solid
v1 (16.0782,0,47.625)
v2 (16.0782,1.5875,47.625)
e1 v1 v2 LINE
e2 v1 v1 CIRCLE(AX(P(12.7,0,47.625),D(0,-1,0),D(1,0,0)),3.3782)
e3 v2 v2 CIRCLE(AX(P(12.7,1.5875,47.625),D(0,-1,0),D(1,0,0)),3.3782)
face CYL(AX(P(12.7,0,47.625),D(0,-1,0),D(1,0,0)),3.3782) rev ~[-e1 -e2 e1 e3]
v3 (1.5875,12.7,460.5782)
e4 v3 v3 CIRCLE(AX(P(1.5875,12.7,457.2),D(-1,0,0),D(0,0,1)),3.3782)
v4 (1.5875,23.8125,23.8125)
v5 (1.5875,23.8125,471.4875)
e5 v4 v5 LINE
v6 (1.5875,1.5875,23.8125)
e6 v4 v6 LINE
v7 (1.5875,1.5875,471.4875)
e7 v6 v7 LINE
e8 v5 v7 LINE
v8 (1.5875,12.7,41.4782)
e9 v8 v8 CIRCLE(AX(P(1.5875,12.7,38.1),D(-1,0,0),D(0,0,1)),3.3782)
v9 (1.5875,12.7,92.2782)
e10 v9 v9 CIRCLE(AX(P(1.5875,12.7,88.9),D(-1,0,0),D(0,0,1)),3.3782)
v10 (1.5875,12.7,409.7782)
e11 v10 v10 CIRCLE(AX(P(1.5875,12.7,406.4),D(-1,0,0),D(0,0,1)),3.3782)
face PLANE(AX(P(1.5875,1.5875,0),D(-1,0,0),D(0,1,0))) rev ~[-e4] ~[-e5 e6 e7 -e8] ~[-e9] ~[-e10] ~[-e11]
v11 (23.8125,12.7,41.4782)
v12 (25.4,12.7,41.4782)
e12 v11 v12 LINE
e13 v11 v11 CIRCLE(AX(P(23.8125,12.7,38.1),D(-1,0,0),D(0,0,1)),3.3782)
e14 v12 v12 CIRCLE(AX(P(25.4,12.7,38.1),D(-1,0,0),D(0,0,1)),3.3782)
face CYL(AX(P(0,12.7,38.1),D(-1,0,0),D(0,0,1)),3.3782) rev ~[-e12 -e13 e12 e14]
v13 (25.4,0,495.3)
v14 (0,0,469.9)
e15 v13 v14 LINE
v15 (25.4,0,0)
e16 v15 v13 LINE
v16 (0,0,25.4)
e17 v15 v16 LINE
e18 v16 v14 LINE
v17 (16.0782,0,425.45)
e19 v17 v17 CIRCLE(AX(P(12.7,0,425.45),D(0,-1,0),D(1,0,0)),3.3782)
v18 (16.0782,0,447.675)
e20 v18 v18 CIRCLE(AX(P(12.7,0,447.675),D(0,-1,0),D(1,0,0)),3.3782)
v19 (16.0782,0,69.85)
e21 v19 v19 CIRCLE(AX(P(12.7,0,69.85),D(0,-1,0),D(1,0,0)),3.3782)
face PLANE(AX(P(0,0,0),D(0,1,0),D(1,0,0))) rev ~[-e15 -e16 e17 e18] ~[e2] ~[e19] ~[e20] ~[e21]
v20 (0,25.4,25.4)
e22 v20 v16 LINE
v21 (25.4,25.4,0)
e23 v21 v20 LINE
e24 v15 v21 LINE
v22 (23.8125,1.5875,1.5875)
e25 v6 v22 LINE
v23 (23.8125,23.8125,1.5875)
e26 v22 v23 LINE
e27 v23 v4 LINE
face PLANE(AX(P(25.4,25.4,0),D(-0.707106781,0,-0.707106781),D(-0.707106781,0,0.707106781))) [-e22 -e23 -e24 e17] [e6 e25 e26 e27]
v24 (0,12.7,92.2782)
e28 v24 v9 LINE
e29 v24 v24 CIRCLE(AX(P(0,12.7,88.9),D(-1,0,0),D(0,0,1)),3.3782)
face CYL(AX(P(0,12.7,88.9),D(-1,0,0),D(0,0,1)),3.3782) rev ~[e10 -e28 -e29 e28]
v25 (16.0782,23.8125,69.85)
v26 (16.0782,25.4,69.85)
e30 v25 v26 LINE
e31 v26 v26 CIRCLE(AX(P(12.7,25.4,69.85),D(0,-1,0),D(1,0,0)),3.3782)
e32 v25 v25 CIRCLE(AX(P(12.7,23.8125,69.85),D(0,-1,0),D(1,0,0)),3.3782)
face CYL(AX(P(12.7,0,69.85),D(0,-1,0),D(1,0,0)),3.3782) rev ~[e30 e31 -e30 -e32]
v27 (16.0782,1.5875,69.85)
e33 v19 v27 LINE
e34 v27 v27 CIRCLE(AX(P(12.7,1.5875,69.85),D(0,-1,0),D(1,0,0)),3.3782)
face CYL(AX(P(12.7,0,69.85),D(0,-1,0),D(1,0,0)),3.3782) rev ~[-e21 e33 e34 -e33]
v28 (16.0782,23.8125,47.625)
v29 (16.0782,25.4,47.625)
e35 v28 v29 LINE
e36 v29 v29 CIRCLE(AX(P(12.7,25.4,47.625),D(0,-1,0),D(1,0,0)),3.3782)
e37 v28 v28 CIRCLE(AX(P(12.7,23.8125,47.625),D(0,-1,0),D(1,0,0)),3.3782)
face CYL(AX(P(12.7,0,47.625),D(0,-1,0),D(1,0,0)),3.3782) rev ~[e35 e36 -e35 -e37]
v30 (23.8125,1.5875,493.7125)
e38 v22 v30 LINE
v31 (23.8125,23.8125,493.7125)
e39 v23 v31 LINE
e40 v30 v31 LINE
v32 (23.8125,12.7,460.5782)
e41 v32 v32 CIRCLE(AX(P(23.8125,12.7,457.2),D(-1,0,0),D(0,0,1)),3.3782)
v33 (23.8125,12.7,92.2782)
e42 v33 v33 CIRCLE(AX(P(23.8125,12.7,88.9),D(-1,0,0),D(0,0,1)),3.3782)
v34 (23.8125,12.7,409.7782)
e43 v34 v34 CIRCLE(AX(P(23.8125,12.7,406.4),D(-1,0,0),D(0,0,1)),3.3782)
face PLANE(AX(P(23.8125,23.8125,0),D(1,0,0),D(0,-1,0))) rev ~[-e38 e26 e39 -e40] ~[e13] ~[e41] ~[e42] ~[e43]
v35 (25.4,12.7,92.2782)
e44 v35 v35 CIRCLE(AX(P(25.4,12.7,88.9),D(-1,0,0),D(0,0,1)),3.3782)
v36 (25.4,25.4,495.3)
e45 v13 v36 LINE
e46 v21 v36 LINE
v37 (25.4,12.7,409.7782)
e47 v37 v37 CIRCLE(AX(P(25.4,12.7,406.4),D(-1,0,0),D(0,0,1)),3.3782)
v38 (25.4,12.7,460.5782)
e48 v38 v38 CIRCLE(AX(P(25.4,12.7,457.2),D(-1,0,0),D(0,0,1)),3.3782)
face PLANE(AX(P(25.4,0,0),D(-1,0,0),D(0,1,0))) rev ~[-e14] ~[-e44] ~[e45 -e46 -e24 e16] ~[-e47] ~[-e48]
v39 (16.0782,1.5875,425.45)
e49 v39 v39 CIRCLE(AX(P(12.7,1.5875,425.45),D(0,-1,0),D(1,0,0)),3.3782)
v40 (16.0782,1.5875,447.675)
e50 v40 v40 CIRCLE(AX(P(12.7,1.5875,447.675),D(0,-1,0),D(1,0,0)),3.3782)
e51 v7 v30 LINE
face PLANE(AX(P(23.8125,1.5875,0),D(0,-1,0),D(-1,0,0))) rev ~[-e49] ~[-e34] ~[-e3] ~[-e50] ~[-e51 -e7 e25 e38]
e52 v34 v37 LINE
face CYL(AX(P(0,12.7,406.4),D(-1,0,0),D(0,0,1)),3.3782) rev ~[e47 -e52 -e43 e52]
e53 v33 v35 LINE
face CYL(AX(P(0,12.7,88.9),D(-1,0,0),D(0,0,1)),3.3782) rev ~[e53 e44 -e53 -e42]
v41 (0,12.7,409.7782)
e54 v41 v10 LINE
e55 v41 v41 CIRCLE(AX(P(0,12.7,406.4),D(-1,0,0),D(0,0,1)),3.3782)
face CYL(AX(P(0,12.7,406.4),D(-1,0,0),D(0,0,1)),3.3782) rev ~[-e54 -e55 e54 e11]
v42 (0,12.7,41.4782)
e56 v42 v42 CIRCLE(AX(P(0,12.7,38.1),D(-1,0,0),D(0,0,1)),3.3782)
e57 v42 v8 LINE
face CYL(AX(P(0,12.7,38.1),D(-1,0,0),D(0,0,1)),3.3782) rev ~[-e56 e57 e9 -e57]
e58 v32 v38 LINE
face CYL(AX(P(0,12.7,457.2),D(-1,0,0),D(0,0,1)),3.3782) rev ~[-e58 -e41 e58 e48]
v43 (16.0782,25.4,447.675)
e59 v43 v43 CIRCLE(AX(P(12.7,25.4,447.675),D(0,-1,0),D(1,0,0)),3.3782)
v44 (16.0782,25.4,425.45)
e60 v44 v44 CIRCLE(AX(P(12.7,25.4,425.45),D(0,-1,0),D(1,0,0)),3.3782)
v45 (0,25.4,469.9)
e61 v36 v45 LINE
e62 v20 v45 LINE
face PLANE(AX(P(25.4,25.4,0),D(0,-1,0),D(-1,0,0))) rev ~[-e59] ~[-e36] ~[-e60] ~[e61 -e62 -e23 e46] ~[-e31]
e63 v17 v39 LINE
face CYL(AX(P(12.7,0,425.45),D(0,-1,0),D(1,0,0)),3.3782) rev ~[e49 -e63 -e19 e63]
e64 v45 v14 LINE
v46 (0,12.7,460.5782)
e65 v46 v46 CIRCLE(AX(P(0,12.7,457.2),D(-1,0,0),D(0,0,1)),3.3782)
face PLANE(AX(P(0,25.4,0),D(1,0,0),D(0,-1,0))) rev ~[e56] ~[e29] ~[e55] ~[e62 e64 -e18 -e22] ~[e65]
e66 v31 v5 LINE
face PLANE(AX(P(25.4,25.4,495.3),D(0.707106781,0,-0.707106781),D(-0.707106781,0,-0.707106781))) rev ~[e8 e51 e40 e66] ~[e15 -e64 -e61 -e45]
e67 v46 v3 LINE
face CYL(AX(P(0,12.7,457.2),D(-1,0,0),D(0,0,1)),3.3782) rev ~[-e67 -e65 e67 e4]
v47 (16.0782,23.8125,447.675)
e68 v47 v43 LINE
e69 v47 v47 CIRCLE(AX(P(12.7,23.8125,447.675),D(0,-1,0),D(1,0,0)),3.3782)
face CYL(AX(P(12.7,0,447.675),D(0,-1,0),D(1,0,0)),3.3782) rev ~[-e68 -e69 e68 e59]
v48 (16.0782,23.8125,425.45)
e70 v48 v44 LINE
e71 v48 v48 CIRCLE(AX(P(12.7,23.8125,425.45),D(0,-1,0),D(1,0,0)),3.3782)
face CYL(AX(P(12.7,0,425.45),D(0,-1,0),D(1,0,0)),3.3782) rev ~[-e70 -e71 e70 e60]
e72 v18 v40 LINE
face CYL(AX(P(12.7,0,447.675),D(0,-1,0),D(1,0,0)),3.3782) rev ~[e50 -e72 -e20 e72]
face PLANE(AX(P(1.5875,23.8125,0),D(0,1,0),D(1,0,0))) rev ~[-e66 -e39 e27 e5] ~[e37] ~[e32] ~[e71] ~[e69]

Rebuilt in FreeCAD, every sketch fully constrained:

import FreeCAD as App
import Part
import Sketcher
Q = App.Units.Quantity


def add_polygon(sketch, points):
    """Adds a closed chain of lines whose ends are joined by coincident constraints."""
    first, n = sketch.GeometryCount, len(points)
    for a, b in zip(points, points[1:] + points[:1]):
        sketch.addGeometry(Part.LineSegment(App.Vector(*a, 0), App.Vector(*b, 0)), False)
    for i in range(n):
        sketch.addConstraint(Sketcher.Constraint("Coincident", first + i, 2, first + (i + 1) % n, 1))

doc = App.newDocument("Part")
params = doc.addObject("Spreadsheet::Sheet", "Params")
for row, (alias, value) in enumerate([
    ("sketch1_width", "1 in"),
    ("pad1_length", "19.5 in"),
    ("sketch2_width", "1 in"),
    ("pocket1_length", "19.5 in"),
    ("sketch3_diameter", "0.266 in"),
    ("pocket2_length", "1 in"),
    ("sketch4_diameter", "0.266 in"),
    ("pocket3_length", "1 in"),
], start=1):
    params.set(f"A{row}", alias)
    params.set(f"B{row}", "=" + value)
    params.setAlias(f"B{row}", alias)

body = doc.addObject("PartDesign::Body", "Body")

sketch1 = doc.addObject("Sketcher::SketchObject", "Sketch")
body.addObject(sketch1)
sketch1.AttachmentSupport = (doc.XY_Plane, [""])
sketch1.MapMode = "FlatFace"
add_polygon(sketch1, [(0, 25), (0, 0), (25, 0), (25, 25)])
add_polygon(sketch1, [(2, 2), (2, 24), (24, 24), (24, 2)])
sketch1.addConstraint(Sketcher.Constraint("Vertical", 0))
sketch1.addConstraint(Sketcher.Constraint("Horizontal", 1))
sketch1.addConstraint(Sketcher.Constraint("Vertical", 2))
sketch1.addConstraint(Sketcher.Constraint("Horizontal", 3))
sketch1.addConstraint(Sketcher.Constraint("Vertical", 4))
sketch1.addConstraint(Sketcher.Constraint("Horizontal", 5))
sketch1.addConstraint(Sketcher.Constraint("Vertical", 6))
sketch1.addConstraint(Sketcher.Constraint("Horizontal", 7))
sketch1.addConstraint(Sketcher.Constraint("Coincident", 0, 2, -1, 1))
sketch1.addConstraint(Sketcher.Constraint("Equal", 3, 0))
sketch1.addConstraint(Sketcher.Constraint("Equal", 7, 4))
sketch1.addConstraint(Sketcher.Constraint("DistanceX", 1, 1, 1, 2, Q("1 in")))
sketch1.addConstraint(Sketcher.Constraint("DistanceX", -1, 1, 4, 2, Q("0.0625 in")))
sketch1.addConstraint(Sketcher.Constraint("DistanceY", -1, 1, 6, 2, Q("0.0625 in")))
sketch1.addConstraint(Sketcher.Constraint("DistanceY", 4, 2, 3, 2, Q("0.0625 in")))
sketch1.setExpression("Constraints[19]", "Params.sketch1_width")
pad1 = doc.addObject("PartDesign::Pad", "Pad")
body.addObject(pad1)
pad1.Profile = sketch1
pad1.setExpression("Length", "Params.pad1_length")

sketch2 = doc.addObject("Sketcher::SketchObject", "Sketch001")
body.addObject(sketch2)
sketch2.AttachmentSupport = (doc.XZ_Plane, [""])
sketch2.MapMode = "FlatFace"
sketch2.AttachmentOffset = App.Placement(App.Vector(0, 0, -1 * 25.4), App.Rotation())
add_polygon(sketch2, [(0, 25), (25, 0), (0, 0)])
add_polygon(sketch2, [(0, 495), (25, 495), (0, 470)])
sketch2.addConstraint(Sketcher.Constraint("Horizontal", 1))
sketch2.addConstraint(Sketcher.Constraint("Vertical", 2))
sketch2.addConstraint(Sketcher.Constraint("Horizontal", 3))
sketch2.addConstraint(Sketcher.Constraint("Vertical", 5))
sketch2.addConstraint(Sketcher.Constraint("Coincident", 1, 2, -1, 1))
sketch2.addConstraint(Sketcher.Constraint("PointOnObject", 4, 2, -2))
sketch2.addConstraint(Sketcher.Constraint("Perpendicular", 0, 4))
sketch2.addConstraint(Sketcher.Constraint("Vertical", 0, 2, 3, 2))
sketch2.addConstraint(Sketcher.Constraint("Equal", 3, 2))
sketch2.addConstraint(Sketcher.Constraint("DistanceX", 1, 2, 1, 1, Q("1 in")))
sketch2.addConstraint(Sketcher.Constraint("DistanceY", -1, 1, 3, 2, Q("19.5 in")))
sketch2.setExpression("Constraints[15]", "Params.sketch2_width")
pocket1 = doc.addObject("PartDesign::Pocket", "Pocket")
body.addObject(pocket1)
pocket1.Profile = sketch2
pocket1.setExpression("Length", "Params.pocket1_length")
pocket1.Reversed = True

sketch3 = doc.addObject("Sketcher::SketchObject", "Sketch002")
body.addObject(sketch3)
sketch3.AttachmentSupport = (doc.XZ_Plane, [""])
sketch3.MapMode = "FlatFace"
sketch3.addGeometry(Part.Circle(App.Vector(12.7, 69.8, 0), App.Vector(0, 0, 1), 3.4), False)
sketch3.addGeometry(Part.Circle(App.Vector(12.7, 47.6, 0), App.Vector(0, 0, 1), 3.4), False)
sketch3.addGeometry(Part.Circle(App.Vector(12.7, 425.4, 0), App.Vector(0, 0, 1), 3.4), False)
sketch3.addGeometry(Part.Circle(App.Vector(12.7, 447.7, 0), App.Vector(0, 0, 1), 3.4), False)
sketch3.addConstraint(Sketcher.Constraint("Equal", 0, 1))
sketch3.addConstraint(Sketcher.Constraint("Equal", 1, 2))
sketch3.addConstraint(Sketcher.Constraint("Equal", 2, 3))
sketch3.addConstraint(Sketcher.Constraint("Vertical", 0, 3, 1, 3))
sketch3.addConstraint(Sketcher.Constraint("Vertical", 1, 3, 2, 3))
sketch3.addConstraint(Sketcher.Constraint("Vertical", 2, 3, 3, 3))
sketch3.addConstraint(Sketcher.Constraint("Diameter", 0, Q("0.266 in")))
sketch3.addConstraint(Sketcher.Constraint("DistanceY", 0, 3, 2, 3, Q("14 in")))
sketch3.addConstraint(Sketcher.Constraint("DistanceX", -1, 1, 0, 3, Q("0.5 in")))
sketch3.addConstraint(Sketcher.Constraint("DistanceY", -1, 1, 0, 3, Q("2.75 in")))
sketch3.addConstraint(Sketcher.Constraint("DistanceY", 1, 3, 3, 3, Q("15.75 in")))
sketch3.addConstraint(Sketcher.Constraint("DistanceY", -1, 1, 1, 3, Q("1.875 in")))
sketch3.setExpression("Constraints[6]", "Params.sketch3_diameter")
pocket2 = doc.addObject("PartDesign::Pocket", "Pocket001")
body.addObject(pocket2)
pocket2.Profile = sketch3
pocket2.setExpression("Length", "Params.pocket2_length")

sketch4 = doc.addObject("Sketcher::SketchObject", "Sketch003")
body.addObject(sketch4)
sketch4.AttachmentSupport = (doc.YZ_Plane, [""])
sketch4.MapMode = "FlatFace"
sketch4.addGeometry(Part.Circle(App.Vector(12.7, 457.2, 0), App.Vector(0, 0, 1), 3.4), False)
sketch4.addGeometry(Part.Circle(App.Vector(12.7, 406.4, 0), App.Vector(0, 0, 1), 3.4), False)
sketch4.addGeometry(Part.Circle(App.Vector(12.7, 38.1, 0), App.Vector(0, 0, 1), 3.4), False)
sketch4.addGeometry(Part.Circle(App.Vector(12.7, 88.9, 0), App.Vector(0, 0, 1), 3.4), False)
sketch4.addConstraint(Sketcher.Constraint("Equal", 0, 1))
sketch4.addConstraint(Sketcher.Constraint("Equal", 1, 2))
sketch4.addConstraint(Sketcher.Constraint("Equal", 2, 3))
sketch4.addConstraint(Sketcher.Constraint("Vertical", 0, 3, 1, 3))
sketch4.addConstraint(Sketcher.Constraint("Vertical", 1, 3, 2, 3))
sketch4.addConstraint(Sketcher.Constraint("Vertical", 2, 3, 3, 3))
sketch4.addConstraint(Sketcher.Constraint("Diameter", 0, Q("0.266 in")))
sketch4.addConstraint(Sketcher.Constraint("DistanceY", -1, 1, 0, 3, Q("18 in")))
sketch4.addConstraint(Sketcher.Constraint("DistanceY", -1, 1, 1, 3, Q("16 in")))
sketch4.addConstraint(Sketcher.Constraint("DistanceY", 2, 3, 3, 3, Q("2 in")))
sketch4.addConstraint(Sketcher.Constraint("DistanceX", -1, 1, 0, 3, Q("0.5 in")))
sketch4.addConstraint(Sketcher.Constraint("DistanceY", -1, 1, 2, 3, Q("1.5 in")))
sketch4.setExpression("Constraints[6]", "Params.sketch4_diameter")
pocket3 = doc.addObject("PartDesign::Pocket", "Pocket002")
body.addObject(pocket3)
pocket3.Profile = sketch4
pocket3.setExpression("Length", "Params.pocket3_length")
pocket3.Reversed = True

doc.recompute()
